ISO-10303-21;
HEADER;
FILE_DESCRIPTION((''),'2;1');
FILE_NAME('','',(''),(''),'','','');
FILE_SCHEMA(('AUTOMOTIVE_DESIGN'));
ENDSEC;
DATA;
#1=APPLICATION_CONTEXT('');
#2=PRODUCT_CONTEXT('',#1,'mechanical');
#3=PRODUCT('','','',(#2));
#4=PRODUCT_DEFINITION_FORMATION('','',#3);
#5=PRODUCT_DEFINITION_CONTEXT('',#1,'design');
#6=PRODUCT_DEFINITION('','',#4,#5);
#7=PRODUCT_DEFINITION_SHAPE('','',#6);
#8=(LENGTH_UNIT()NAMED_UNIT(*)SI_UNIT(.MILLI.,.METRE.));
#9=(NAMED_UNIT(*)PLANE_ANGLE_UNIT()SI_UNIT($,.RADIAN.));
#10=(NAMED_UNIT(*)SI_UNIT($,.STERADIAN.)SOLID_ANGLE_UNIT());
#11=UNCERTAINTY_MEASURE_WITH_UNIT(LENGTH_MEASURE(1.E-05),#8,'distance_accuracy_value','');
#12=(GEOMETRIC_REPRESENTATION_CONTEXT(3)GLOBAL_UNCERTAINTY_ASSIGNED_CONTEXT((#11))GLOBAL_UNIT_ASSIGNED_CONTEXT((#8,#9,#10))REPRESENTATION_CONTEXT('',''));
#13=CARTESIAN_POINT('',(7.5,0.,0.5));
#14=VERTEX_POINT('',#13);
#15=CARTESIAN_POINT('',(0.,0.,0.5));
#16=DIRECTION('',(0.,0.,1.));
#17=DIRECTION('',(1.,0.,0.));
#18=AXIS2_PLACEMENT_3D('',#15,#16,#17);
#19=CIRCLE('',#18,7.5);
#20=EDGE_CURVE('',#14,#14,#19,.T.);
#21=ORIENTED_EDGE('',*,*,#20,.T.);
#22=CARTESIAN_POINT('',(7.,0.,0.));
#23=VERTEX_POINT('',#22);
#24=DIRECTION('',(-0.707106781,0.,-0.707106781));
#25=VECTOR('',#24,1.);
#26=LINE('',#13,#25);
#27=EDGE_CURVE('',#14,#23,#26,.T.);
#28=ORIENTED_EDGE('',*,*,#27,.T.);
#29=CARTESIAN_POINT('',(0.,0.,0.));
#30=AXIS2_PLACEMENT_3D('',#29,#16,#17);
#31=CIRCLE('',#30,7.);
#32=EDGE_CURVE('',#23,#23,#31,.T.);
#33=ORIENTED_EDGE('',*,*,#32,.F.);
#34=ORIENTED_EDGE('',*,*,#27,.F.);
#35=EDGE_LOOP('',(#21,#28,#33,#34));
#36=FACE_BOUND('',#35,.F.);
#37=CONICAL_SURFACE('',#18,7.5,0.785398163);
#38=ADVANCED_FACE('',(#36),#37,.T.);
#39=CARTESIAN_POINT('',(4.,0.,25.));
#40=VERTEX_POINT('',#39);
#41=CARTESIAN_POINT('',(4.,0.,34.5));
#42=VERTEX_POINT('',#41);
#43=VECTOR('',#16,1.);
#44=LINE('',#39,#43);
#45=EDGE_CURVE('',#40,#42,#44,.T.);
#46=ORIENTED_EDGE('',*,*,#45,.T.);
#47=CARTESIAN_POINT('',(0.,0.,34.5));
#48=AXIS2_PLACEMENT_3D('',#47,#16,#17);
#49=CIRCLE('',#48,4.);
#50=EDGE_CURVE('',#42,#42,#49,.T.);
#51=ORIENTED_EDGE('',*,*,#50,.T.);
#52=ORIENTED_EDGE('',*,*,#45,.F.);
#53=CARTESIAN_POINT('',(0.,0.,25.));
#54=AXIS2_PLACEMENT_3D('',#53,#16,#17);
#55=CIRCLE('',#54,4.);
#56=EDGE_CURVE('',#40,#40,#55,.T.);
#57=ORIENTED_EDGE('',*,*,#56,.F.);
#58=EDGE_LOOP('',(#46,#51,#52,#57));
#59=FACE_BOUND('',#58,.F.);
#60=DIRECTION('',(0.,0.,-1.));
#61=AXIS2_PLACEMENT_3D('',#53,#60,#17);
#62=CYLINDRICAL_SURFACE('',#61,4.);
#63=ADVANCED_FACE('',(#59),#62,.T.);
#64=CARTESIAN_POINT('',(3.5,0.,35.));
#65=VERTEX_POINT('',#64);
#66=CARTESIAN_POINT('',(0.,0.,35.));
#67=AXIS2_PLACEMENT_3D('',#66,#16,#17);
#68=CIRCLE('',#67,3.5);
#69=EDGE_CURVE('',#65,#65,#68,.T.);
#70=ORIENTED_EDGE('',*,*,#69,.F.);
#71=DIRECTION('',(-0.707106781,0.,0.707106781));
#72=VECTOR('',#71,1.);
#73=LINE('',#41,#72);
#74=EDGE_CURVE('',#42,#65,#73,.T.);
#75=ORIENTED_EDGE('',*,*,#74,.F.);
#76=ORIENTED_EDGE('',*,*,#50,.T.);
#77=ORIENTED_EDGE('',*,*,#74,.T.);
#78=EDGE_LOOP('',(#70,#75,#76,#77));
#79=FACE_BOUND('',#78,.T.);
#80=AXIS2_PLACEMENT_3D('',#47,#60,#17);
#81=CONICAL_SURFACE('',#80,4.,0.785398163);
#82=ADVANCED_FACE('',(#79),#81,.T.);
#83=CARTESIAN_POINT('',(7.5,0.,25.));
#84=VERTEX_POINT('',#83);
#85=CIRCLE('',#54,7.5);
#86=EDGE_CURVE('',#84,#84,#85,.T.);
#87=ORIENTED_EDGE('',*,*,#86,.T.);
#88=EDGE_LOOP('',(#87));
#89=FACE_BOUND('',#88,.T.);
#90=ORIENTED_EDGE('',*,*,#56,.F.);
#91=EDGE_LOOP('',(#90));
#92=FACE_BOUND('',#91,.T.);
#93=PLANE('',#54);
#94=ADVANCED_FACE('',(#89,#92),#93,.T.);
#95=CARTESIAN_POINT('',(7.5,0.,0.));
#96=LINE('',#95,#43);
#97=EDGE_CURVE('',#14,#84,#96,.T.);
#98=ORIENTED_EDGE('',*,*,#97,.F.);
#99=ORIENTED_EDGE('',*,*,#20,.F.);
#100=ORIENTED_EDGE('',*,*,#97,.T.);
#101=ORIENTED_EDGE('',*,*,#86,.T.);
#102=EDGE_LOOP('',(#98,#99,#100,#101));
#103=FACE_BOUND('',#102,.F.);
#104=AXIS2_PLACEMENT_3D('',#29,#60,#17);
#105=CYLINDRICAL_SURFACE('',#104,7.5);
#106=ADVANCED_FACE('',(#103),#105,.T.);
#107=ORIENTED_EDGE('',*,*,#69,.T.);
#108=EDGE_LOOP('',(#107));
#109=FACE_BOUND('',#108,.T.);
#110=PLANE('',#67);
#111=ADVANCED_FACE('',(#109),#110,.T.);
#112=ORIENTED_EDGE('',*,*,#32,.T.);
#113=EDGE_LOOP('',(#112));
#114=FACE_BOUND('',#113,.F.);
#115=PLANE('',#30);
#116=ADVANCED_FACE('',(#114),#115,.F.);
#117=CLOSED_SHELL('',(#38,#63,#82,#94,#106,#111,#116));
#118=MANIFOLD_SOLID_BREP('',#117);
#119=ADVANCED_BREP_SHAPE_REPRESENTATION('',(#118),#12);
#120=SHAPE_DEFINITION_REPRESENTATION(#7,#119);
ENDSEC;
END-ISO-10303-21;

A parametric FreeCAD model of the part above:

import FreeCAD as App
import Part
import Sketcher
from FreeCAD import Vector


def edges_at(feature, points):
    """Names of the edges that pass closest to the given points."""
    edges = feature.Shape.Edges
    near = lambda p: min(range(len(edges)), key=lambda i: edges[i].distToShape(Part.Vertex(*p))[0])
    return sorted({f"Edge{near(p) + 1}" for p in points})

doc = App.newDocument("Part")
body = doc.addObject("PartDesign::Body", "Body")

# Sketch on XY plane
sketch1 = body.newObject("Sketcher::SketchObject", "Sketch")
sketch1.AttachmentSupport = (doc.getObject("XY_Plane"), [""])
sketch1.MapMode = "FlatFace"
sketch1.addGeometry(Part.Circle(Vector(0, 0, 0), Vector(0, 0, 1), 8), False)
sketch1.addConstraint([
    Sketcher.Constraint("Coincident", 0, 3, -1, 1),
    Sketcher.Constraint("Diameter", 0, 15.0),
])
pad1 = body.newObject("PartDesign::Pad", "Pad")
pad1.Profile = sketch1
pad1.Length = 25

# Sketch on XY plane
sketch2 = body.newObject("Sketcher::SketchObject", "Sketch001")
sketch2.AttachmentSupport = (doc.getObject("XY_Plane"), [""])
sketch2.MapMode = "FlatFace"
sketch2.AttachmentOffset = App.Placement(Vector(0, 0, 25), App.Rotation())
sketch2.addGeometry(Part.Circle(Vector(0, 0, 0), Vector(0, 0, 1), 4), False)
sketch2.addConstraint([
    Sketcher.Constraint("Coincident", 0, 3, -1, 1),
    Sketcher.Constraint("Diameter", 0, 8.0),
])
pad2 = body.newObject("PartDesign::Pad", "Pad001")
pad2.Profile = sketch2
pad2.Length = 10
doc.recompute()

chamfer = body.newObject("PartDesign::Chamfer", "Chamfer")
chamfer.Base = (pad2, edges_at(pad2, [(-4, 0, 35), (-7.5, 0, 0)]))
chamfer.Size = 0.5

doc.recompute()
